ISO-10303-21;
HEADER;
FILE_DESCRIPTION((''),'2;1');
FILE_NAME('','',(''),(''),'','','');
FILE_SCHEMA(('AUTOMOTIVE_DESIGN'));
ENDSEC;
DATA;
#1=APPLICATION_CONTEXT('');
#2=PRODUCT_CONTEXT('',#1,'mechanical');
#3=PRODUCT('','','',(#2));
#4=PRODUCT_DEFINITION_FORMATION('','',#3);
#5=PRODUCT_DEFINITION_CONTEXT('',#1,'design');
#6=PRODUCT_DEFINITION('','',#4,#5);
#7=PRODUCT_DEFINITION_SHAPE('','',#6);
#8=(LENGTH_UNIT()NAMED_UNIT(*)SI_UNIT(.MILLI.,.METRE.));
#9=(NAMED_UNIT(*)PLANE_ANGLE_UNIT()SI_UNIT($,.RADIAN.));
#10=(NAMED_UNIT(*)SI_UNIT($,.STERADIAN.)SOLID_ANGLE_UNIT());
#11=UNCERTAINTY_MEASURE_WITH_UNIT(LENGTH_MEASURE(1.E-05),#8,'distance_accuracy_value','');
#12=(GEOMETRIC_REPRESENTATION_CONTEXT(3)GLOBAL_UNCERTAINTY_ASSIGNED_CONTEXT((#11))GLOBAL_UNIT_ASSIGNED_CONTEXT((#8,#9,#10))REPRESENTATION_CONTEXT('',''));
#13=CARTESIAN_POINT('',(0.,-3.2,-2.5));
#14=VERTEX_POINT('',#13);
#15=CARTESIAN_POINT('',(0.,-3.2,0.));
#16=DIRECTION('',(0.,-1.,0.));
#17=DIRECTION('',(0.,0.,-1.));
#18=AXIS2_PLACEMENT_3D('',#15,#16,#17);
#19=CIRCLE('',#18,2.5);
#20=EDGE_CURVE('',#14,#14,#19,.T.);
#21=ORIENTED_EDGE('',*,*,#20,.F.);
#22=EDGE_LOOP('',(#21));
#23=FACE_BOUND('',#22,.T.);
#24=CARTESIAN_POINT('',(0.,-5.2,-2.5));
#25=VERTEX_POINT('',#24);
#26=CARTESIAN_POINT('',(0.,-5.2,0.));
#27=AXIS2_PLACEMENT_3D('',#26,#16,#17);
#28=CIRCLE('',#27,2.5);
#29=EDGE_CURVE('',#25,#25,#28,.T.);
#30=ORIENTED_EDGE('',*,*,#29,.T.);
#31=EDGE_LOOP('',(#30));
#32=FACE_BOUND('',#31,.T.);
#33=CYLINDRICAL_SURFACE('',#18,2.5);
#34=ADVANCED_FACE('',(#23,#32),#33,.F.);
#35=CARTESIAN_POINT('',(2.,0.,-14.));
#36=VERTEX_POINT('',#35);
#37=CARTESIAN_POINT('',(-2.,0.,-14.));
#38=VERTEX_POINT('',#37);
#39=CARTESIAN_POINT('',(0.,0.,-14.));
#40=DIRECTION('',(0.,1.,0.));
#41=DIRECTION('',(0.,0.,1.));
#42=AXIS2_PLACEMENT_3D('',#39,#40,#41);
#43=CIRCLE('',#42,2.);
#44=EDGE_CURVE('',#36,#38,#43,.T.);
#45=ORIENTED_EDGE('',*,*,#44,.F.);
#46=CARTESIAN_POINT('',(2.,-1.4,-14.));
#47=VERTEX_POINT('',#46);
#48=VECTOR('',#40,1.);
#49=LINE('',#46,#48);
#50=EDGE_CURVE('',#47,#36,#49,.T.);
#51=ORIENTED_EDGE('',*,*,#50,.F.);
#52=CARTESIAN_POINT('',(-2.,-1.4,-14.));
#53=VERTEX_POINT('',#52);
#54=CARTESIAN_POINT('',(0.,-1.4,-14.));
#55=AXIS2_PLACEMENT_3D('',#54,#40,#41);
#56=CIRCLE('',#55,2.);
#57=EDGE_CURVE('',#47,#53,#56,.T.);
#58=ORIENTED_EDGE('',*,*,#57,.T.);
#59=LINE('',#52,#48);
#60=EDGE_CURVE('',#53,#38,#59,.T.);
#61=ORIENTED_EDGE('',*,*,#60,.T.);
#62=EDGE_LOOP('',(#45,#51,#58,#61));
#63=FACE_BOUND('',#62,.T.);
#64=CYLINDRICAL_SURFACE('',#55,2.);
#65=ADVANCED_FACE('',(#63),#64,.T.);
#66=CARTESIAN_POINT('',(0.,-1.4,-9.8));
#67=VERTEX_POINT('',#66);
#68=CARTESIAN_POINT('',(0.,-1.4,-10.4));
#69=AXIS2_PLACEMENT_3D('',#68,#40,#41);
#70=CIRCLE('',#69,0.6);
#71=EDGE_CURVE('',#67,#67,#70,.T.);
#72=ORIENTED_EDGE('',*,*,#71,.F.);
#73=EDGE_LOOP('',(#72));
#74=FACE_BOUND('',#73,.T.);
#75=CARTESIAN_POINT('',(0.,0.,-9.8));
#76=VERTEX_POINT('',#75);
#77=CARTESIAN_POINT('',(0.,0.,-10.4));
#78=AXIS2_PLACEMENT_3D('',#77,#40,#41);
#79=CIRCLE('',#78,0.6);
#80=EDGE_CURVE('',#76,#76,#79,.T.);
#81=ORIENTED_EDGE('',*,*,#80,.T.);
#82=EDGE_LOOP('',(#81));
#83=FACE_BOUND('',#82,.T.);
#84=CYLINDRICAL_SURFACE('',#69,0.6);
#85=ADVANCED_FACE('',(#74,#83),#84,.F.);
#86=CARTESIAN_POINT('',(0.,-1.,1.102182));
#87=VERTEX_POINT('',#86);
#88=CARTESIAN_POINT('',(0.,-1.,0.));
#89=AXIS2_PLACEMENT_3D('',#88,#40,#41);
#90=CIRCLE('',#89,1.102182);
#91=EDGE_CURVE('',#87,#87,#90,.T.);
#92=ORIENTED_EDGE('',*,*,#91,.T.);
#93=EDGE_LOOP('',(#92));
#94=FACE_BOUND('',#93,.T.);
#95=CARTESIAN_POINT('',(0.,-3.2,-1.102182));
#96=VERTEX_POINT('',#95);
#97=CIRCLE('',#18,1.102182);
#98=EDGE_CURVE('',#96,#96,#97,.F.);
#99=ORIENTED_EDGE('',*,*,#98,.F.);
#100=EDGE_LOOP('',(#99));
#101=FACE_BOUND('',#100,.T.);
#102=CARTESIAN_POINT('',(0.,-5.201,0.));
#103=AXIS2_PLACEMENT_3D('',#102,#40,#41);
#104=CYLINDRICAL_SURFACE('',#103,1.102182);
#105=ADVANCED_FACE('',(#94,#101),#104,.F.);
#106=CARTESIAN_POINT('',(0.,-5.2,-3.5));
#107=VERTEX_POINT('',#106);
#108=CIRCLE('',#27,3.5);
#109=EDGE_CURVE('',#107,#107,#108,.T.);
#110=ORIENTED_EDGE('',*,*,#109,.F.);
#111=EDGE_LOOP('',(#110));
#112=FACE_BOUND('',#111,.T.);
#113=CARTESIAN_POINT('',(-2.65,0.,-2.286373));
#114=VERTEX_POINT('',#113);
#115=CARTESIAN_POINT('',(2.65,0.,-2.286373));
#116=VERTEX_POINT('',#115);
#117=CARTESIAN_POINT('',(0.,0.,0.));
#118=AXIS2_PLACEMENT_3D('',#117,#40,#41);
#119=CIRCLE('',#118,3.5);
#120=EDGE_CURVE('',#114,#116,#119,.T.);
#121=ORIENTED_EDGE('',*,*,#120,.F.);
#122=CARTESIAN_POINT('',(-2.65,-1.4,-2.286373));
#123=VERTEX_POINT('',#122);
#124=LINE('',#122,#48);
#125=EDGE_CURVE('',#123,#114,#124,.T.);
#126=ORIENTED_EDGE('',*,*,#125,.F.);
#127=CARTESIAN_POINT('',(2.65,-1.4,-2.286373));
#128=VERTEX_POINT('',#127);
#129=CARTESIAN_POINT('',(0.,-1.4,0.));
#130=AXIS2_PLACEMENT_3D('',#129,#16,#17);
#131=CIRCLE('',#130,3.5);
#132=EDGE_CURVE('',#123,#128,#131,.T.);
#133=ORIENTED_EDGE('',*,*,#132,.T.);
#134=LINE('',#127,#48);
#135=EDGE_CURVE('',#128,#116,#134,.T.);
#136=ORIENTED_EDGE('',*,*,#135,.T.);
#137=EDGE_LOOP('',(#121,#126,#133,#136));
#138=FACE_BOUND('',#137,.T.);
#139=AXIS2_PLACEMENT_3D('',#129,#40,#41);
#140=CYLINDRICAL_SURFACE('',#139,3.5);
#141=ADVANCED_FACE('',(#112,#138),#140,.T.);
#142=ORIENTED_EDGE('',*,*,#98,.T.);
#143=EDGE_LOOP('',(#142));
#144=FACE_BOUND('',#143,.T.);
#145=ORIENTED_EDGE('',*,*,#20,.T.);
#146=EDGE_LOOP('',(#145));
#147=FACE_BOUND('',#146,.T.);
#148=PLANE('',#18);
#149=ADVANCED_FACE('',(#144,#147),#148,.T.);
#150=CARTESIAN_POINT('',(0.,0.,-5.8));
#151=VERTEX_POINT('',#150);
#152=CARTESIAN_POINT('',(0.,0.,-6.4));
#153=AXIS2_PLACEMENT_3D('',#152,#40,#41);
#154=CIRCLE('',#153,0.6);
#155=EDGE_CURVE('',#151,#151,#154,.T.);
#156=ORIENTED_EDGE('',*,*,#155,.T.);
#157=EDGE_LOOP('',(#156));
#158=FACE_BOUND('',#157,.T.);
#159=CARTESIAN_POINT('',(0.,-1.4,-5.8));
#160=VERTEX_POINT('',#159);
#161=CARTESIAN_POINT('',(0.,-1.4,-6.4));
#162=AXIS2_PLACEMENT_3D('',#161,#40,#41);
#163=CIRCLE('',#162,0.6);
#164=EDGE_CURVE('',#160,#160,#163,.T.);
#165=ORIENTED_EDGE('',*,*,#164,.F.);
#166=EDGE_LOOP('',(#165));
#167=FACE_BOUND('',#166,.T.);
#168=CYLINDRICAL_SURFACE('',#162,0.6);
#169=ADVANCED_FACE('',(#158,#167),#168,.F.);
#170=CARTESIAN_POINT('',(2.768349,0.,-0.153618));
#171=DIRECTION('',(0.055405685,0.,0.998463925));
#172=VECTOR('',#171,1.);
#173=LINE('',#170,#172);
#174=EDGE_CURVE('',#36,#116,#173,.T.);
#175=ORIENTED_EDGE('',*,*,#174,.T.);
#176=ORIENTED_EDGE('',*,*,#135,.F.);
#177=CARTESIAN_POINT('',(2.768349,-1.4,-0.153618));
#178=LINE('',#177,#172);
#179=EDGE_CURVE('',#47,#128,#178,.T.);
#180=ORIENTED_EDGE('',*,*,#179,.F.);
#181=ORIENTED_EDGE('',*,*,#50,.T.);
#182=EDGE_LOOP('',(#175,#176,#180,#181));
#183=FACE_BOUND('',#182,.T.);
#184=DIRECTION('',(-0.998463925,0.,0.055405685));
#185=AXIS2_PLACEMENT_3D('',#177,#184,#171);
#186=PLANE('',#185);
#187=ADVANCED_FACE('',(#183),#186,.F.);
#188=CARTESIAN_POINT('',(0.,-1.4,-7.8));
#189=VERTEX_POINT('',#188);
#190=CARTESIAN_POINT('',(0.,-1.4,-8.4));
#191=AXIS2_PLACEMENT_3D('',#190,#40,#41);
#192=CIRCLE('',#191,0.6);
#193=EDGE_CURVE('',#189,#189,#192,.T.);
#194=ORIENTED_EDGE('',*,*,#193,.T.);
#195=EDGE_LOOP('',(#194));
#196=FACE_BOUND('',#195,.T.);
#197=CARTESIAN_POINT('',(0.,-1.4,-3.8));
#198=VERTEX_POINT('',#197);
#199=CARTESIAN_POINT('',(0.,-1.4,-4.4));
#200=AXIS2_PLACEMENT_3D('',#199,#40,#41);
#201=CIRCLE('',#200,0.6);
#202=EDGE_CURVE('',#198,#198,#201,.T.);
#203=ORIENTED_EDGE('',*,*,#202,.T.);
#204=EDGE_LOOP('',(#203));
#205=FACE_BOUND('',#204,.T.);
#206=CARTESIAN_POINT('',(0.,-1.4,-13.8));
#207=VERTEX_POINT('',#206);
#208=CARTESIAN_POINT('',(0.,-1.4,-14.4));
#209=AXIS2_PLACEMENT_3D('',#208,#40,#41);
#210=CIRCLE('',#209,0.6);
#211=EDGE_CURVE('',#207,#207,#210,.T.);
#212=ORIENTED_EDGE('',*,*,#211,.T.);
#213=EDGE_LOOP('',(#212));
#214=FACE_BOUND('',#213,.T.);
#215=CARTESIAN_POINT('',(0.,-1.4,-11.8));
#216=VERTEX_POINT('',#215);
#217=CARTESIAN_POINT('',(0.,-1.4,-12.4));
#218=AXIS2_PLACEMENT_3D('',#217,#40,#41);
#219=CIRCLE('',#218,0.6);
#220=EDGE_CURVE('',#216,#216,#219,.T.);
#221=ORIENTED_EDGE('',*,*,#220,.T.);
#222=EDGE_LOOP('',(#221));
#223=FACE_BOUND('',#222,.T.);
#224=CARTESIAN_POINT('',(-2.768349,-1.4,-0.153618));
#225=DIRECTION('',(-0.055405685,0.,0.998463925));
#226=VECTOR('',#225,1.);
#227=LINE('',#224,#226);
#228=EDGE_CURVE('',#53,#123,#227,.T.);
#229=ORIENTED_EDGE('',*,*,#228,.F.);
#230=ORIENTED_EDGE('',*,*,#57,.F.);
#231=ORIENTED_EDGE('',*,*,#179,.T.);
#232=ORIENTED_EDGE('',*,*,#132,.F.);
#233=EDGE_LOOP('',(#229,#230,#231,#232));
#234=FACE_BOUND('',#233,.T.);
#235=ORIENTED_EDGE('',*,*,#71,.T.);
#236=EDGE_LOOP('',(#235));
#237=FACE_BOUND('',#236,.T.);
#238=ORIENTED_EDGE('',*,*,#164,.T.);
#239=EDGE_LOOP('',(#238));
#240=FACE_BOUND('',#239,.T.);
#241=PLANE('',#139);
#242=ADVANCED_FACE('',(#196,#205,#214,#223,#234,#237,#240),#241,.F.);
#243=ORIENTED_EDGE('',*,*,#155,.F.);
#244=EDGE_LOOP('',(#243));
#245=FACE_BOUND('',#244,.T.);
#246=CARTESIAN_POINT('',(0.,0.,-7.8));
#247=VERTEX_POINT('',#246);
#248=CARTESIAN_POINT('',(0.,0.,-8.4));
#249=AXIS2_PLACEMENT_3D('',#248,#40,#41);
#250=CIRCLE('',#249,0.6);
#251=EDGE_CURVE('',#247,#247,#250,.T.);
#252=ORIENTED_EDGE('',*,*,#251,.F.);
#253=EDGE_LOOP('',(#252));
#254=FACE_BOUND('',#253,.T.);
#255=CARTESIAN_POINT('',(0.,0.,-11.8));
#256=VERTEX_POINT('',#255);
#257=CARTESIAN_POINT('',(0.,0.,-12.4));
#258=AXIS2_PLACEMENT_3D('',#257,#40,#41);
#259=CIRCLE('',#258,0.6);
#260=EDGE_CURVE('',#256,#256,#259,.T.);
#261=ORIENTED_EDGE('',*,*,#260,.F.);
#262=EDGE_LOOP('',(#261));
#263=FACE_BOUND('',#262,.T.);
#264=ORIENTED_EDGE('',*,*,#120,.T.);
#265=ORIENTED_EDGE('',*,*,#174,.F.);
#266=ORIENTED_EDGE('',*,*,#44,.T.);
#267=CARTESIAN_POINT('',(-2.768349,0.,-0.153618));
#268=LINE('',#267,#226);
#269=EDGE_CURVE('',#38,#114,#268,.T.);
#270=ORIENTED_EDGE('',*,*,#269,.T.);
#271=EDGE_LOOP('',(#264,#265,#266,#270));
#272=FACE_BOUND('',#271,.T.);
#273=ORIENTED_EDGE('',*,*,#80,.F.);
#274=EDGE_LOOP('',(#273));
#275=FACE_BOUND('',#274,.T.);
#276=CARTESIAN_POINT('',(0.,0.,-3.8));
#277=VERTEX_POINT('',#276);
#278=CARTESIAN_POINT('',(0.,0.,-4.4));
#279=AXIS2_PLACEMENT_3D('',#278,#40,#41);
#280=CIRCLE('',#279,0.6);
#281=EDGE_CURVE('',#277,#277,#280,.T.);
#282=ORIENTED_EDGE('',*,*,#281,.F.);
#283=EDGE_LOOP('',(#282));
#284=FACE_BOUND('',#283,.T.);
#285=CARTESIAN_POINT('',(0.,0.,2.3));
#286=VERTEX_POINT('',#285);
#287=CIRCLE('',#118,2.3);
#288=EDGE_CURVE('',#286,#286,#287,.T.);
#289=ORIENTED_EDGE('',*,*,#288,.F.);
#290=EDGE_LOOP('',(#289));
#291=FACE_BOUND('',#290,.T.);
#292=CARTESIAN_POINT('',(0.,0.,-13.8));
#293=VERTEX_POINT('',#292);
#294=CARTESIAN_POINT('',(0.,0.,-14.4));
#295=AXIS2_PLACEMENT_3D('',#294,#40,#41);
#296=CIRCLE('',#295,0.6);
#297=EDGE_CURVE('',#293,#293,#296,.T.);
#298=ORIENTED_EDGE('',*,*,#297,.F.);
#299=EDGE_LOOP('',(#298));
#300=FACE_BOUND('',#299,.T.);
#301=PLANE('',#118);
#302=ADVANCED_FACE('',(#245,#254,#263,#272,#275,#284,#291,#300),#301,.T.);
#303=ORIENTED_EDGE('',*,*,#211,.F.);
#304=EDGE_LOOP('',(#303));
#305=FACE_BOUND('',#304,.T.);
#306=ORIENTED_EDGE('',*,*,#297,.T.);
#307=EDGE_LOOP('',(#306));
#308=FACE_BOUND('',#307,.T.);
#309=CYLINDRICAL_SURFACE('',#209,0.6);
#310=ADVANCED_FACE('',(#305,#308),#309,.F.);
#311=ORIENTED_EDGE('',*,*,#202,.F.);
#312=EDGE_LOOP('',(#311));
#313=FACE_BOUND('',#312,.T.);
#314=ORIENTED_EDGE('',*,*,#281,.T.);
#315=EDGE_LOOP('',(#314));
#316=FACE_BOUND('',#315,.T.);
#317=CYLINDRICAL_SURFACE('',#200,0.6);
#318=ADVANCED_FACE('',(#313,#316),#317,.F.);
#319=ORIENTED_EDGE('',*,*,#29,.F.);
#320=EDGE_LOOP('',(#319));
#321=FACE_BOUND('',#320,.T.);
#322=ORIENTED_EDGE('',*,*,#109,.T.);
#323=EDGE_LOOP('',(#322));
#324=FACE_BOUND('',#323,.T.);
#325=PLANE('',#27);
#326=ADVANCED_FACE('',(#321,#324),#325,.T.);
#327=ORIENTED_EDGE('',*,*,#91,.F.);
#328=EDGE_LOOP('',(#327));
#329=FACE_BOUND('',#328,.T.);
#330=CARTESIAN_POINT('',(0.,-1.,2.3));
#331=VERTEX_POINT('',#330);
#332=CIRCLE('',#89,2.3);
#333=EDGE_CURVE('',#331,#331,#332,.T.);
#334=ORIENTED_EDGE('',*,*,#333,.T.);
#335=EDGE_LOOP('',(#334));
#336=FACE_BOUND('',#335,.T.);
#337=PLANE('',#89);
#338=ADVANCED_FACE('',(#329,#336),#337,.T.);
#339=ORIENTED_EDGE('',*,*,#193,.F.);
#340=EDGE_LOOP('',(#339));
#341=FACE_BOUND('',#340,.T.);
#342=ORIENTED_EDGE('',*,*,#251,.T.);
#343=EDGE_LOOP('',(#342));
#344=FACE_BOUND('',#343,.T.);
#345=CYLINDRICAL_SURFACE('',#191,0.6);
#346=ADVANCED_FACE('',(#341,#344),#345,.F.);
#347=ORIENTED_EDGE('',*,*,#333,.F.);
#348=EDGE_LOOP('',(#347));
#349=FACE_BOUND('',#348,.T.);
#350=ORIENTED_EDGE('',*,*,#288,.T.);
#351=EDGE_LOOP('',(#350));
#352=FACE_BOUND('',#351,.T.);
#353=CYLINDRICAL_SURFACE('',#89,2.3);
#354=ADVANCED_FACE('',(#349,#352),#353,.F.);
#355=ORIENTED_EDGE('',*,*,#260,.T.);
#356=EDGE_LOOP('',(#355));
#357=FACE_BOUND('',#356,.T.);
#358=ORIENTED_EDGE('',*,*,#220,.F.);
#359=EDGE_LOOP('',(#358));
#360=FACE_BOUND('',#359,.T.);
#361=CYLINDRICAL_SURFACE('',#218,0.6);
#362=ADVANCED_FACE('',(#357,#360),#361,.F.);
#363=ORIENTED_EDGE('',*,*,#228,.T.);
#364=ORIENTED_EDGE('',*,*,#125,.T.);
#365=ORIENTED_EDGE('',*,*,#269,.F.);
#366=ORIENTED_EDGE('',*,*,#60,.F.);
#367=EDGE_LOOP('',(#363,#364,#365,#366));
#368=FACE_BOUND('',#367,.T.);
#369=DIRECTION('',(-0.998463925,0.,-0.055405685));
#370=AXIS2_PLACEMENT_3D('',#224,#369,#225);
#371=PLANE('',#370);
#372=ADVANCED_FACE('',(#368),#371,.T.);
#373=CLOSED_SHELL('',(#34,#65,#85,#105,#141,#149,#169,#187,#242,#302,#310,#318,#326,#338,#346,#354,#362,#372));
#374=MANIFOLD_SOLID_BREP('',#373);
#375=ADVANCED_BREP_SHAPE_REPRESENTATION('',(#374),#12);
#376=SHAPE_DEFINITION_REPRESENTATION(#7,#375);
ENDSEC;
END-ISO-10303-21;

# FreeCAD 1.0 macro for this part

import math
import FreeCAD as App
import Part
import Sketcher

V = App.Vector
Q = App.Units.Quantity

doc = App.newDocument("Part")
body = doc.addObject("PartDesign::Body", "Body")

# Sketch on XZ plane
sketch1 = body.newObject("Sketcher::SketchObject", "Sketch")
sketch1.AttachmentSupport = (doc.getObject("XZ_Plane"), [""])
sketch1.MapMode = "FlatFace"
sketch1.addGeometry([
    Part.ArcOfCircle(Part.Circle(V(0, -14, 0), V(0, 0, 1), 2), math.radians(180), math.radians(360)),  # 0
    Part.LineSegment(V(-2, -14, 0), V(-2.6, -2.3, 0)),  # 1
    Part.ArcOfCircle(Part.Circle(V(0, 0, 0), V(0, 0, 1), 3.5), math.radians(41), math.radians(221)),  # 2
    Part.ArcOfCircle(Part.Circle(V(0, 0, 0), V(0, 0, 1), 3.5), math.radians(-41), math.radians(41)),  # 3
    Part.LineSegment(V(2.6, -2.3, 0), V(2, -14, 0)),  # 4
    Part.ArcOfCircle(Part.Circle(V(0, -4.4, 0), V(0, 0, 1), 0.6), math.radians(0), math.radians(90)),  # 5
    Part.ArcOfCircle(Part.Circle(V(0, -4.4, 0), V(0, 0, 1), 0.6), math.radians(90), math.radians(270)),  # 6
    Part.ArcOfCircle(Part.Circle(V(0, -4.4, 0), V(0, 0, 1), 0.6), math.radians(-90), math.radians(0)),  # 7
    Part.ArcOfCircle(Part.Circle(V(0, -6.4, 0), V(0, 0, 1), 0.6), math.radians(0), math.radians(90)),  # 8
    Part.ArcOfCircle(Part.Circle(V(0, -6.4, 0), V(0, 0, 1), 0.6), math.radians(90), math.radians(270)),  # 9
    Part.ArcOfCircle(Part.Circle(V(0, -6.4, 0), V(0, 0, 1), 0.6), math.radians(-90), math.radians(0)),  # 10
    Part.ArcOfCircle(Part.Circle(V(0, -8.4, 0), V(0, 0, 1), 0.6), math.radians(0), math.radians(90)),  # 11
    Part.ArcOfCircle(Part.Circle(V(0, -8.4, 0), V(0, 0, 1), 0.6), math.radians(90), math.radians(270)),  # 12
    Part.ArcOfCircle(Part.Circle(V(0, -8.4, 0), V(0, 0, 1), 0.6), math.radians(-90), math.radians(0)),  # 13
    Part.ArcOfCircle(Part.Circle(V(0, -10.4, 0), V(0, 0, 1), 0.6), math.radians(0), math.radians(90)),  # 14
    Part.ArcOfCircle(Part.Circle(V(0, -10.4, 0), V(0, 0, 1), 0.6), math.radians(90), math.radians(270)),  # 15
    Part.ArcOfCircle(Part.Circle(V(0, -10.4, 0), V(0, 0, 1), 0.6), math.radians(-90), math.radians(0)),  # 16
    Part.ArcOfCircle(Part.Circle(V(0, -12.4, 0), V(0, 0, 1), 0.6), math.radians(0), math.radians(90)),  # 17
    Part.ArcOfCircle(Part.Circle(V(0, -12.4, 0), V(0, 0, 1), 0.6), math.radians(90), math.radians(270)),  # 18
    Part.ArcOfCircle(Part.Circle(V(0, -12.4, 0), V(0, 0, 1), 0.6), math.radians(-90), math.radians(0)),  # 19
    Part.ArcOfCircle(Part.Circle(V(0, -14.4, 0), V(0, 0, 1), 0.6), math.radians(90), math.radians(360)),  # 20
    Part.ArcOfCircle(Part.Circle(V(0, -14.4, 0), V(0, 0, 1), 0.6), math.radians(0), math.radians(90)),  # 21
], False)
sketch1.addConstraint([
    Sketcher.Constraint("Coincident", 0, 1, 1, 1),
    Sketcher.Constraint("Coincident", 1, 2, 2, 2),
    Sketcher.Constraint("Tangent", 2, 1, 3, 2),
    Sketcher.Constraint("Coincident", 3, 1, 4, 1),
    Sketcher.Constraint("Coincident", 4, 2, 0, 2),
    Sketcher.Constraint("Tangent", 5, 2, 6, 1),
    Sketcher.Constraint("Tangent", 6, 2, 7, 1),
    Sketcher.Constraint("Tangent", 7, 2, 5, 1),
    Sketcher.Constraint("Tangent", 8, 2, 9, 1),
    Sketcher.Constraint("Tangent", 9, 2, 10, 1),
    Sketcher.Constraint("Tangent", 10, 2, 8, 1),
    Sketcher.Constraint("Tangent", 11, 2, 12, 1),
    Sketcher.Constraint("Tangent", 12, 2, 13, 1),
    Sketcher.Constraint("Tangent", 13, 2, 11, 1),
    Sketcher.Constraint("Tangent", 14, 2, 15, 1),
    Sketcher.Constraint("Tangent", 15, 2, 16, 1),
    Sketcher.Constraint("Tangent", 16, 2, 14, 1),
    Sketcher.Constraint("Tangent", 17, 2, 18, 1),
    Sketcher.Constraint("Tangent", 18, 2, 19, 1),
    Sketcher.Constraint("Tangent", 19, 2, 17, 1),
    Sketcher.Constraint("Tangent", 20, 1, 21, 2),
    Sketcher.Constraint("Coincident", 21, 1, 20, 2),
    Sketcher.Constraint("Coincident", 2, 3, -1, 1),
    Sketcher.Constraint("Equal", 2, 3),
    Sketcher.Constraint("Equal", 7, 8),
    Sketcher.Constraint("Equal", 10, 11),
    Sketcher.Constraint("Equal", 13, 14),
    Sketcher.Constraint("Equal", 16, 17),
    Sketcher.Constraint("Equal", 19, 20),
    Sketcher.Constraint("Symmetric", 0, 1, 4, 2, -2),
    Sketcher.Constraint("PointOnObject", 5, 3, -2),
    Sketcher.Constraint("PointOnObject", 8, 3, -2),
    Sketcher.Constraint("PointOnObject", 11, 3, -2),
    Sketcher.Constraint("PointOnObject", 14, 3, -2),
    Sketcher.Constraint("PointOnObject", 17, 3, -2),
    Sketcher.Constraint("PointOnObject", 20, 3, -2),
    Sketcher.Constraint("PointOnObject", 5, 2, -2),
    Sketcher.Constraint("PointOnObject", 6, 2, -2),
    Sketcher.Constraint("PointOnObject", 8, 2, -2),
    Sketcher.Constraint("PointOnObject", 9, 2, -2),
    Sketcher.Constraint("PointOnObject", 11, 2, -2),
    Sketcher.Constraint("PointOnObject", 12, 2, -2),
    Sketcher.Constraint("PointOnObject", 14, 2, -2),
    Sketcher.Constraint("PointOnObject", 15, 2, -2),
    Sketcher.Constraint("PointOnObject", 17, 2, -2),
    Sketcher.Constraint("PointOnObject", 18, 2, -2),
    Sketcher.Constraint("PointOnObject", 20, 1, -2),
    Sketcher.Constraint("Horizontal", 1, 2, 3, 1),
    Sketcher.Constraint("Horizontal", 6, 3, 7, 2),
    Sketcher.Constraint("Horizontal", 9, 3, 10, 2),
    Sketcher.Constraint("Horizontal", 12, 3, 13, 2),
    Sketcher.Constraint("Horizontal", 15, 3, 16, 2),
    Sketcher.Constraint("Horizontal", 18, 3, 19, 2),
    Sketcher.Constraint("Horizontal", 20, 3, 21, 1),
    Sketcher.Constraint("Vertical", 2, 1, 3, 1),
    Sketcher.Constraint("Radius", 0, Q("2 mm")),
    Sketcher.Constraint("Radius", 2, Q("3.5 mm")),
    Sketcher.Constraint("Radius", 5, Q("0.6 mm")),
    Sketcher.Constraint("DistanceY", 0, 3, -1, 1, Q("14 mm")),
    Sketcher.Constraint("DistanceY", 0, 1, -1, 1, Q("14 mm")),
    Sketcher.Constraint("DistanceY", 6, 2, -1, 1, Q("5 mm")),
    Sketcher.Constraint("DistanceY", 9, 2, -1, 1, Q("7 mm")),
    Sketcher.Constraint("DistanceY", 12, 2, -1, 1, Q("9 mm")),
    Sketcher.Constraint("DistanceY", 15, 2, -1, 1, Q("11 mm")),
    Sketcher.Constraint("DistanceY", 18, 2, -1, 1, Q("13 mm")),
    Sketcher.Constraint("DistanceY", 20, 3, 17, 3, Q("2 mm")),
    Sketcher.Constraint("DistanceX", 1, 2, 2, 1, Q("5.3 mm")),
])
pad1 = body.newObject("PartDesign::Pad", "Pad")
pad1.Profile = sketch1
pad1.Length = 1.4

# Sketch on XZ plane
sketch2 = body.newObject("Sketcher::SketchObject", "Sketch001")
sketch2.AttachmentSupport = (doc.getObject("XZ_Plane"), [""])
sketch2.MapMode = "FlatFace"
sketch2.AttachmentOffset = App.Placement(V(0, 0, 1.4), App.Rotation())
sketch2.addGeometry(Part.Circle(V(0, 0, 0), V(0, 0, 1), 3.5), False)
sketch2.addConstraint([
    Sketcher.Constraint("Coincident", 0, 3, -1, 1),
    Sketcher.Constraint("Diameter", 0, Q("7 mm")),
])
pad2 = body.newObject("PartDesign::Pad", "Pad001")
pad2.Profile = sketch2
pad2.Length = 3.8

# Sketch on XZ plane
sketch3 = body.newObject("Sketcher::SketchObject", "Sketch002")
sketch3.AttachmentSupport = (doc.getObject("XZ_Plane"), [""])
sketch3.MapMode = "FlatFace"
sketch3.addGeometry(Part.Circle(V(0, 0, 0), V(0, 0, 1), 2.3), False)
sketch3.addConstraint([
    Sketcher.Constraint("Coincident", 0, 3, -1, 1),
    Sketcher.Constraint("Diameter", 0, Q("4.6 mm")),
])
pocket1 = body.newObject("PartDesign::Pocket", "Pocket")
pocket1.Profile = sketch3
pocket1.Length = 1
pocket1.Reversed = True

# Sketch on XZ plane
sketch4 = body.newObject("Sketcher::SketchObject", "Sketch003")
sketch4.AttachmentSupport = (doc.getObject("XZ_Plane"), [""])
sketch4.MapMode = "FlatFace"
sketch4.AttachmentOffset = App.Placement(V(0, 0, 5.2), App.Rotation())
sketch4.addGeometry(Part.Circle(V(0, 0, 0), V(0, 0, 1), 2.5), False)
sketch4.addConstraint([
    Sketcher.Constraint("Coincident", 0, 3, -1, 1),
    Sketcher.Constraint("Diameter", 0, Q("5 mm")),
])
pocket2 = body.newObject("PartDesign::Pocket", "Pocket001")
pocket2.Profile = sketch4
pocket2.Length = 2

# Sketch on XZ plane
sketch5 = body.newObject("Sketcher::SketchObject", "Sketch004")
sketch5.AttachmentSupport = (doc.getObject("XZ_Plane"), [""])
sketch5.MapMode = "FlatFace"
sketch5.AttachmentOffset = App.Placement(V(0, 0, 1), App.Rotation())
sketch5.addGeometry(Part.Circle(V(0, 0, 0), V(0, 0, 1), 1.1), False)
sketch5.addConstraint([
    Sketcher.Constraint("Coincident", 0, 3, -1, 1),
    Sketcher.Constraint("Diameter", 0, Q("2.204364 mm")),
])
pocket3 = body.newObject("PartDesign::Pocket", "Pocket002")
pocket3.Profile = sketch5
pocket3.Type = "UpToFirst"
pocket3.Reversed = True

doc.recompute()
